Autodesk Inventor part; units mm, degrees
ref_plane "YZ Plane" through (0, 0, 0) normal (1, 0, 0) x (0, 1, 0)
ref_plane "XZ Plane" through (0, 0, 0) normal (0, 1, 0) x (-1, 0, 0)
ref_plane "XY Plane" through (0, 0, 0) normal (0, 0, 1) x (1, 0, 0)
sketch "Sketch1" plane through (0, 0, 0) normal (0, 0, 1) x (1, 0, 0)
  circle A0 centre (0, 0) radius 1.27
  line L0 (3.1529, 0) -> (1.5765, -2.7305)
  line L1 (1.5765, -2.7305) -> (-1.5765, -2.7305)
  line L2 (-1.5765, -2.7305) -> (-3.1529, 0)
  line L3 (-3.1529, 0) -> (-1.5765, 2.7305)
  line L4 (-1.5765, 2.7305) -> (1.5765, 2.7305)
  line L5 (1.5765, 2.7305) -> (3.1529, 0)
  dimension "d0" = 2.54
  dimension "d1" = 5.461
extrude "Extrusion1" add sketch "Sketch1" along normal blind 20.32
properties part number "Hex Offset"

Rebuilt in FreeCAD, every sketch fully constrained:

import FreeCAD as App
import Part
import Sketcher
Q = App.Units.Quantity

doc = App.newDocument("Part")
body = doc.addObject("PartDesign::Body", "Body")

# Sketch on XY plane
sketch1 = body.newObject("Sketcher::SketchObject", "Sketch")
sketch1.AttachmentSupport = (doc.getObject("XY_Plane"), [""])
sketch1.MapMode = "FlatFace"
sketch1.addGeometry(Part.LineSegment(App.Vector(1.6, -2.7, 0), App.Vector(3.2, 0, 0)), False)
sketch1.addGeometry(Part.LineSegment(App.Vector(3.2, 0, 0), App.Vector(1.6, 2.7, 0)), False)
sketch1.addGeometry(Part.LineSegment(App.Vector(1.6, 2.7, 0), App.Vector(-1.6, 2.7, 0)), False)
sketch1.addGeometry(Part.LineSegment(App.Vector(-1.6, 2.7, 0), App.Vector(-3.2, 0, 0)), False)
sketch1.addGeometry(Part.LineSegment(App.Vector(-3.2, 0, 0), App.Vector(-1.6, -2.7, 0)), False)
sketch1.addGeometry(Part.LineSegment(App.Vector(-1.6, -2.7, 0), App.Vector(1.6, -2.7, 0)), False)
sketch1.addGeometry(Part.Circle(App.Vector(0, 0, 0), App.Vector(0, 0, 1), 1.3), False)
sketch1.addConstraint(Sketcher.Constraint("Coincident", 0, 2, 1, 1))
sketch1.addConstraint(Sketcher.Constraint("Coincident", 1, 2, 2, 1))
sketch1.addConstraint(Sketcher.Constraint("Coincident", 2, 2, 3, 1))
sketch1.addConstraint(Sketcher.Constraint("Coincident", 3, 2, 4, 1))
sketch1.addConstraint(Sketcher.Constraint("Coincident", 4, 2, 5, 1))
sketch1.addConstraint(Sketcher.Constraint("Coincident", 5, 2, 0, 1))
sketch1.addConstraint(Sketcher.Constraint("Horizontal", 2))
sketch1.addConstraint(Sketcher.Constraint("Horizontal", 5))
sketch1.addConstraint(Sketcher.Constraint("Coincident", 6, 3, -1, 1))
sketch1.addConstraint(Sketcher.Constraint("Symmetric", 0, 2, 3, 2, -1, 1))
sketch1.addConstraint(Sketcher.Constraint("Symmetric", 1, 2, 4, 2, -1, 1))
sketch1.addConstraint(Sketcher.Constraint("PointOnObject", 0, 2, -1))
sketch1.addConstraint(Sketcher.Constraint("Parallel", 0, 3))
sketch1.addConstraint(Sketcher.Constraint("Vertical", 2, 2, 4, 2))
sketch1.addConstraint(Sketcher.Constraint("Diameter", 6, Q("0.1 in")))
sketch1.addConstraint(Sketcher.Constraint("Angle", 0, Q("60.0009 deg")))
sketch1.addConstraint(Sketcher.Constraint("DistanceY", 4, 2, 2, 2, Q("0.215 in")))
sketch1.addConstraint(Sketcher.Constraint("DistanceX", 2, 2, 2, 1, Q("3.153 mm")))
pad1 = body.newObject("PartDesign::Pad", "Pad")
pad1.Profile = sketch1
pad1.Length = Q("0.8 in")

doc.recompute()
